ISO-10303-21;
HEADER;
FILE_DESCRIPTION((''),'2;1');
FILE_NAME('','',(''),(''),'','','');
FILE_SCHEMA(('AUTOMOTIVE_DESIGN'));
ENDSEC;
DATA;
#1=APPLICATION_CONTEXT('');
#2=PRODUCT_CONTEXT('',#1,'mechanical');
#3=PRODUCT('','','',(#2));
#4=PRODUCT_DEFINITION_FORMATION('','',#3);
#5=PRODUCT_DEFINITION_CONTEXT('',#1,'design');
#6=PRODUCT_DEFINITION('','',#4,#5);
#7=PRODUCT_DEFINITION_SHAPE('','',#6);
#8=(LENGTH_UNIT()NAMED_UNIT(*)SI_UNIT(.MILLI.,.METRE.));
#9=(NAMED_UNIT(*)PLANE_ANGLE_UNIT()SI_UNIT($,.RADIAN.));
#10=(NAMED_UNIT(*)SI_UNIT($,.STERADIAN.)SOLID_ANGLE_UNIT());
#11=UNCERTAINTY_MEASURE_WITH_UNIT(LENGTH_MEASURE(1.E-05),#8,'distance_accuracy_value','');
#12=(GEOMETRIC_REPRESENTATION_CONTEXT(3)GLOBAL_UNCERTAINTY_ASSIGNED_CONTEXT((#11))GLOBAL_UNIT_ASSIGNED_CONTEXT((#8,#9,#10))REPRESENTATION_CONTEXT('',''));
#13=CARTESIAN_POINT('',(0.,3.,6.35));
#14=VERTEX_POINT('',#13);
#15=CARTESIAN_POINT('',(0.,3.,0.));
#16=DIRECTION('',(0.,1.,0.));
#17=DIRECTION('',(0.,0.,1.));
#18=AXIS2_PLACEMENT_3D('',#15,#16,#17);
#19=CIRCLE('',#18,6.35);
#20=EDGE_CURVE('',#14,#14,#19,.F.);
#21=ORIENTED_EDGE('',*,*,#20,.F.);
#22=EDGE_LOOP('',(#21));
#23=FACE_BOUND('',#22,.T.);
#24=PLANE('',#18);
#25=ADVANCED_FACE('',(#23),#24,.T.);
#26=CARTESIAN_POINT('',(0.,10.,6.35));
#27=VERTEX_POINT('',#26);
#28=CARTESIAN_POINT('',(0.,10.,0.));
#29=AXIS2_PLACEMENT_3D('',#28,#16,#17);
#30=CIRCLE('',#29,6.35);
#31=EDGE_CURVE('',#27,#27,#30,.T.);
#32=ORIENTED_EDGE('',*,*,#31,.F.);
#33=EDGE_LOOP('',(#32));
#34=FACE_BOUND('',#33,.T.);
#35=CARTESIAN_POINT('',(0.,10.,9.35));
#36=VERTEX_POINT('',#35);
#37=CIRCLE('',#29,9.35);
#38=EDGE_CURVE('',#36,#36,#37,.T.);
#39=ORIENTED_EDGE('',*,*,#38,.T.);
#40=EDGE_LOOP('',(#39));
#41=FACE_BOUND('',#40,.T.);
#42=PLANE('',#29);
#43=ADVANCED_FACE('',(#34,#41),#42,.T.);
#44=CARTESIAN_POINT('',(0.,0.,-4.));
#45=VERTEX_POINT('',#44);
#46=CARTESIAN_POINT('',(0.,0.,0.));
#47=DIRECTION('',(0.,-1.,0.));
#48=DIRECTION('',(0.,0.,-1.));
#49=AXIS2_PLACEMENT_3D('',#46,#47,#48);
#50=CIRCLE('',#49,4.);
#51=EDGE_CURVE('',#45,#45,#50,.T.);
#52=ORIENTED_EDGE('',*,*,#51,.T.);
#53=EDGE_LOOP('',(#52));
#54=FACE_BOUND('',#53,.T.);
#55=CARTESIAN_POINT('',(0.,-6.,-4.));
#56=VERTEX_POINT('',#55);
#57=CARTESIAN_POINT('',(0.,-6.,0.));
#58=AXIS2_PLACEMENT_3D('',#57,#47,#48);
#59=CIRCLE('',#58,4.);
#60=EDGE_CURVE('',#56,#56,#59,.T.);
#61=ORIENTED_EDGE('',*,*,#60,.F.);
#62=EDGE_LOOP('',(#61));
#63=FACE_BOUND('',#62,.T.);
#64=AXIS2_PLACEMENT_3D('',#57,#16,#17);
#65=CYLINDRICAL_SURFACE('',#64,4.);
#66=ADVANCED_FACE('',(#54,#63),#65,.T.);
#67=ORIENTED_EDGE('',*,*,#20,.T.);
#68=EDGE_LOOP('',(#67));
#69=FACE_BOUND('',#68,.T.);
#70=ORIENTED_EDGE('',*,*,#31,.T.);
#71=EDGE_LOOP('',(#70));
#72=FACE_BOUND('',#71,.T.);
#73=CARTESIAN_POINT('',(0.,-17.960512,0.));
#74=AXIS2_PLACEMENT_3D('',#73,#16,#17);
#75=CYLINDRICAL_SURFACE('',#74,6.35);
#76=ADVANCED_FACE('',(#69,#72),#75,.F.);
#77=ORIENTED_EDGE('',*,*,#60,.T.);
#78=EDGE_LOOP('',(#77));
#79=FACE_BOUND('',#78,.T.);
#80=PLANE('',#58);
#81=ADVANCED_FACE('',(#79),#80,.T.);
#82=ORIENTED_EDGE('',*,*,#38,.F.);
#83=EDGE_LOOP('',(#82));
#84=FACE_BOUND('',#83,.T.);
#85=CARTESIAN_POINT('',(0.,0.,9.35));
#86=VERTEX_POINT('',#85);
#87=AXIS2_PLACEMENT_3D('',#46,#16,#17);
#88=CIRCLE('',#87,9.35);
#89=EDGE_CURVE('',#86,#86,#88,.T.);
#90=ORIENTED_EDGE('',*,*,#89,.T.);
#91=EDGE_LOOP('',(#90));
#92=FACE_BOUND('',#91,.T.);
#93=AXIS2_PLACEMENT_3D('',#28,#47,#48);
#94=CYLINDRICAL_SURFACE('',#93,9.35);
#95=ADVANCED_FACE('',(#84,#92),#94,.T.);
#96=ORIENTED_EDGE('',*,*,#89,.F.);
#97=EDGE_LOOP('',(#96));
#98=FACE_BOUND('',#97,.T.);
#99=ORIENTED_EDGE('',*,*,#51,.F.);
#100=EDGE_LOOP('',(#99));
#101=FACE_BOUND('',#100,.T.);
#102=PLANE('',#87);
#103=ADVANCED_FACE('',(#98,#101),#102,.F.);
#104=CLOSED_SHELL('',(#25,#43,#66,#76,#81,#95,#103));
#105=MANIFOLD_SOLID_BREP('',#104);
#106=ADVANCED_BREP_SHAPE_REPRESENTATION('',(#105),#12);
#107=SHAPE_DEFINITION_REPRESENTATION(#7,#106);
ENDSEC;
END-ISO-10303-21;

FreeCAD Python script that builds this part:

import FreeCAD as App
import Part
import Sketcher
from FreeCAD import Vector
Q = App.Units.Quantity

doc = App.newDocument("Part")
body = doc.addObject("PartDesign::Body", "Body")

sketch1 = body.newObject("Sketcher::SketchObject", "Sketch")
sketch1.AttachmentSupport = (doc.getObject("XZ_Plane"), [""])
sketch1.MapMode = "FlatFace"
sketch1.addGeometry(Part.Circle(Vector(0, 0, 0), Vector(0, 0, 1), 9), False)
sketch1.addConstraint([
    Sketcher.Constraint("Coincident", 0, 3, -1, 1),
    Sketcher.Constraint("Diameter", 0, Q("18.7 mm")),
])
pad1 = body.newObject("PartDesign::Pad", "Pad")
pad1.Profile = sketch1
pad1.Length = 10
pad1.Reversed = True

sketch2 = body.newObject("Sketcher::SketchObject", "Sketch001")
sketch2.AttachmentSupport = (doc.getObject("XZ_Plane"), [""])
sketch2.MapMode = "FlatFace"
sketch2.AttachmentOffset = App.Placement(Vector(0, 0, -10), App.Rotation())
sketch2.addGeometry(Part.Circle(Vector(0, 0, 0), Vector(0, 0, 1), 6), False)
sketch2.addConstraint([
    Sketcher.Constraint("Coincident", 0, 3, -1, 1),
    Sketcher.Constraint("Diameter", 0, Q("12.7 mm")),
])
pocket1 = body.newObject("PartDesign::Pocket", "Pocket")
pocket1.Profile = sketch2
pocket1.Length = 7
pocket1.Reversed = True

sketch3 = body.newObject("Sketcher::SketchObject", "Sketch002")
sketch3.AttachmentSupport = (doc.getObject("XZ_Plane"), [""])
sketch3.MapMode = "FlatFace"
sketch3.addGeometry(Part.Circle(Vector(0, 0, 0), Vector(0, 0, 1), 4), False)
sketch3.addConstraint([
    Sketcher.Constraint("Coincident", 0, 3, -1, 1),
    Sketcher.Constraint("Diameter", 0, Q("8 mm")),
])
pad2 = body.newObject("PartDesign::Pad", "Pad001")
pad2.Profile = sketch3
pad2.Length = 6

doc.recompute()
